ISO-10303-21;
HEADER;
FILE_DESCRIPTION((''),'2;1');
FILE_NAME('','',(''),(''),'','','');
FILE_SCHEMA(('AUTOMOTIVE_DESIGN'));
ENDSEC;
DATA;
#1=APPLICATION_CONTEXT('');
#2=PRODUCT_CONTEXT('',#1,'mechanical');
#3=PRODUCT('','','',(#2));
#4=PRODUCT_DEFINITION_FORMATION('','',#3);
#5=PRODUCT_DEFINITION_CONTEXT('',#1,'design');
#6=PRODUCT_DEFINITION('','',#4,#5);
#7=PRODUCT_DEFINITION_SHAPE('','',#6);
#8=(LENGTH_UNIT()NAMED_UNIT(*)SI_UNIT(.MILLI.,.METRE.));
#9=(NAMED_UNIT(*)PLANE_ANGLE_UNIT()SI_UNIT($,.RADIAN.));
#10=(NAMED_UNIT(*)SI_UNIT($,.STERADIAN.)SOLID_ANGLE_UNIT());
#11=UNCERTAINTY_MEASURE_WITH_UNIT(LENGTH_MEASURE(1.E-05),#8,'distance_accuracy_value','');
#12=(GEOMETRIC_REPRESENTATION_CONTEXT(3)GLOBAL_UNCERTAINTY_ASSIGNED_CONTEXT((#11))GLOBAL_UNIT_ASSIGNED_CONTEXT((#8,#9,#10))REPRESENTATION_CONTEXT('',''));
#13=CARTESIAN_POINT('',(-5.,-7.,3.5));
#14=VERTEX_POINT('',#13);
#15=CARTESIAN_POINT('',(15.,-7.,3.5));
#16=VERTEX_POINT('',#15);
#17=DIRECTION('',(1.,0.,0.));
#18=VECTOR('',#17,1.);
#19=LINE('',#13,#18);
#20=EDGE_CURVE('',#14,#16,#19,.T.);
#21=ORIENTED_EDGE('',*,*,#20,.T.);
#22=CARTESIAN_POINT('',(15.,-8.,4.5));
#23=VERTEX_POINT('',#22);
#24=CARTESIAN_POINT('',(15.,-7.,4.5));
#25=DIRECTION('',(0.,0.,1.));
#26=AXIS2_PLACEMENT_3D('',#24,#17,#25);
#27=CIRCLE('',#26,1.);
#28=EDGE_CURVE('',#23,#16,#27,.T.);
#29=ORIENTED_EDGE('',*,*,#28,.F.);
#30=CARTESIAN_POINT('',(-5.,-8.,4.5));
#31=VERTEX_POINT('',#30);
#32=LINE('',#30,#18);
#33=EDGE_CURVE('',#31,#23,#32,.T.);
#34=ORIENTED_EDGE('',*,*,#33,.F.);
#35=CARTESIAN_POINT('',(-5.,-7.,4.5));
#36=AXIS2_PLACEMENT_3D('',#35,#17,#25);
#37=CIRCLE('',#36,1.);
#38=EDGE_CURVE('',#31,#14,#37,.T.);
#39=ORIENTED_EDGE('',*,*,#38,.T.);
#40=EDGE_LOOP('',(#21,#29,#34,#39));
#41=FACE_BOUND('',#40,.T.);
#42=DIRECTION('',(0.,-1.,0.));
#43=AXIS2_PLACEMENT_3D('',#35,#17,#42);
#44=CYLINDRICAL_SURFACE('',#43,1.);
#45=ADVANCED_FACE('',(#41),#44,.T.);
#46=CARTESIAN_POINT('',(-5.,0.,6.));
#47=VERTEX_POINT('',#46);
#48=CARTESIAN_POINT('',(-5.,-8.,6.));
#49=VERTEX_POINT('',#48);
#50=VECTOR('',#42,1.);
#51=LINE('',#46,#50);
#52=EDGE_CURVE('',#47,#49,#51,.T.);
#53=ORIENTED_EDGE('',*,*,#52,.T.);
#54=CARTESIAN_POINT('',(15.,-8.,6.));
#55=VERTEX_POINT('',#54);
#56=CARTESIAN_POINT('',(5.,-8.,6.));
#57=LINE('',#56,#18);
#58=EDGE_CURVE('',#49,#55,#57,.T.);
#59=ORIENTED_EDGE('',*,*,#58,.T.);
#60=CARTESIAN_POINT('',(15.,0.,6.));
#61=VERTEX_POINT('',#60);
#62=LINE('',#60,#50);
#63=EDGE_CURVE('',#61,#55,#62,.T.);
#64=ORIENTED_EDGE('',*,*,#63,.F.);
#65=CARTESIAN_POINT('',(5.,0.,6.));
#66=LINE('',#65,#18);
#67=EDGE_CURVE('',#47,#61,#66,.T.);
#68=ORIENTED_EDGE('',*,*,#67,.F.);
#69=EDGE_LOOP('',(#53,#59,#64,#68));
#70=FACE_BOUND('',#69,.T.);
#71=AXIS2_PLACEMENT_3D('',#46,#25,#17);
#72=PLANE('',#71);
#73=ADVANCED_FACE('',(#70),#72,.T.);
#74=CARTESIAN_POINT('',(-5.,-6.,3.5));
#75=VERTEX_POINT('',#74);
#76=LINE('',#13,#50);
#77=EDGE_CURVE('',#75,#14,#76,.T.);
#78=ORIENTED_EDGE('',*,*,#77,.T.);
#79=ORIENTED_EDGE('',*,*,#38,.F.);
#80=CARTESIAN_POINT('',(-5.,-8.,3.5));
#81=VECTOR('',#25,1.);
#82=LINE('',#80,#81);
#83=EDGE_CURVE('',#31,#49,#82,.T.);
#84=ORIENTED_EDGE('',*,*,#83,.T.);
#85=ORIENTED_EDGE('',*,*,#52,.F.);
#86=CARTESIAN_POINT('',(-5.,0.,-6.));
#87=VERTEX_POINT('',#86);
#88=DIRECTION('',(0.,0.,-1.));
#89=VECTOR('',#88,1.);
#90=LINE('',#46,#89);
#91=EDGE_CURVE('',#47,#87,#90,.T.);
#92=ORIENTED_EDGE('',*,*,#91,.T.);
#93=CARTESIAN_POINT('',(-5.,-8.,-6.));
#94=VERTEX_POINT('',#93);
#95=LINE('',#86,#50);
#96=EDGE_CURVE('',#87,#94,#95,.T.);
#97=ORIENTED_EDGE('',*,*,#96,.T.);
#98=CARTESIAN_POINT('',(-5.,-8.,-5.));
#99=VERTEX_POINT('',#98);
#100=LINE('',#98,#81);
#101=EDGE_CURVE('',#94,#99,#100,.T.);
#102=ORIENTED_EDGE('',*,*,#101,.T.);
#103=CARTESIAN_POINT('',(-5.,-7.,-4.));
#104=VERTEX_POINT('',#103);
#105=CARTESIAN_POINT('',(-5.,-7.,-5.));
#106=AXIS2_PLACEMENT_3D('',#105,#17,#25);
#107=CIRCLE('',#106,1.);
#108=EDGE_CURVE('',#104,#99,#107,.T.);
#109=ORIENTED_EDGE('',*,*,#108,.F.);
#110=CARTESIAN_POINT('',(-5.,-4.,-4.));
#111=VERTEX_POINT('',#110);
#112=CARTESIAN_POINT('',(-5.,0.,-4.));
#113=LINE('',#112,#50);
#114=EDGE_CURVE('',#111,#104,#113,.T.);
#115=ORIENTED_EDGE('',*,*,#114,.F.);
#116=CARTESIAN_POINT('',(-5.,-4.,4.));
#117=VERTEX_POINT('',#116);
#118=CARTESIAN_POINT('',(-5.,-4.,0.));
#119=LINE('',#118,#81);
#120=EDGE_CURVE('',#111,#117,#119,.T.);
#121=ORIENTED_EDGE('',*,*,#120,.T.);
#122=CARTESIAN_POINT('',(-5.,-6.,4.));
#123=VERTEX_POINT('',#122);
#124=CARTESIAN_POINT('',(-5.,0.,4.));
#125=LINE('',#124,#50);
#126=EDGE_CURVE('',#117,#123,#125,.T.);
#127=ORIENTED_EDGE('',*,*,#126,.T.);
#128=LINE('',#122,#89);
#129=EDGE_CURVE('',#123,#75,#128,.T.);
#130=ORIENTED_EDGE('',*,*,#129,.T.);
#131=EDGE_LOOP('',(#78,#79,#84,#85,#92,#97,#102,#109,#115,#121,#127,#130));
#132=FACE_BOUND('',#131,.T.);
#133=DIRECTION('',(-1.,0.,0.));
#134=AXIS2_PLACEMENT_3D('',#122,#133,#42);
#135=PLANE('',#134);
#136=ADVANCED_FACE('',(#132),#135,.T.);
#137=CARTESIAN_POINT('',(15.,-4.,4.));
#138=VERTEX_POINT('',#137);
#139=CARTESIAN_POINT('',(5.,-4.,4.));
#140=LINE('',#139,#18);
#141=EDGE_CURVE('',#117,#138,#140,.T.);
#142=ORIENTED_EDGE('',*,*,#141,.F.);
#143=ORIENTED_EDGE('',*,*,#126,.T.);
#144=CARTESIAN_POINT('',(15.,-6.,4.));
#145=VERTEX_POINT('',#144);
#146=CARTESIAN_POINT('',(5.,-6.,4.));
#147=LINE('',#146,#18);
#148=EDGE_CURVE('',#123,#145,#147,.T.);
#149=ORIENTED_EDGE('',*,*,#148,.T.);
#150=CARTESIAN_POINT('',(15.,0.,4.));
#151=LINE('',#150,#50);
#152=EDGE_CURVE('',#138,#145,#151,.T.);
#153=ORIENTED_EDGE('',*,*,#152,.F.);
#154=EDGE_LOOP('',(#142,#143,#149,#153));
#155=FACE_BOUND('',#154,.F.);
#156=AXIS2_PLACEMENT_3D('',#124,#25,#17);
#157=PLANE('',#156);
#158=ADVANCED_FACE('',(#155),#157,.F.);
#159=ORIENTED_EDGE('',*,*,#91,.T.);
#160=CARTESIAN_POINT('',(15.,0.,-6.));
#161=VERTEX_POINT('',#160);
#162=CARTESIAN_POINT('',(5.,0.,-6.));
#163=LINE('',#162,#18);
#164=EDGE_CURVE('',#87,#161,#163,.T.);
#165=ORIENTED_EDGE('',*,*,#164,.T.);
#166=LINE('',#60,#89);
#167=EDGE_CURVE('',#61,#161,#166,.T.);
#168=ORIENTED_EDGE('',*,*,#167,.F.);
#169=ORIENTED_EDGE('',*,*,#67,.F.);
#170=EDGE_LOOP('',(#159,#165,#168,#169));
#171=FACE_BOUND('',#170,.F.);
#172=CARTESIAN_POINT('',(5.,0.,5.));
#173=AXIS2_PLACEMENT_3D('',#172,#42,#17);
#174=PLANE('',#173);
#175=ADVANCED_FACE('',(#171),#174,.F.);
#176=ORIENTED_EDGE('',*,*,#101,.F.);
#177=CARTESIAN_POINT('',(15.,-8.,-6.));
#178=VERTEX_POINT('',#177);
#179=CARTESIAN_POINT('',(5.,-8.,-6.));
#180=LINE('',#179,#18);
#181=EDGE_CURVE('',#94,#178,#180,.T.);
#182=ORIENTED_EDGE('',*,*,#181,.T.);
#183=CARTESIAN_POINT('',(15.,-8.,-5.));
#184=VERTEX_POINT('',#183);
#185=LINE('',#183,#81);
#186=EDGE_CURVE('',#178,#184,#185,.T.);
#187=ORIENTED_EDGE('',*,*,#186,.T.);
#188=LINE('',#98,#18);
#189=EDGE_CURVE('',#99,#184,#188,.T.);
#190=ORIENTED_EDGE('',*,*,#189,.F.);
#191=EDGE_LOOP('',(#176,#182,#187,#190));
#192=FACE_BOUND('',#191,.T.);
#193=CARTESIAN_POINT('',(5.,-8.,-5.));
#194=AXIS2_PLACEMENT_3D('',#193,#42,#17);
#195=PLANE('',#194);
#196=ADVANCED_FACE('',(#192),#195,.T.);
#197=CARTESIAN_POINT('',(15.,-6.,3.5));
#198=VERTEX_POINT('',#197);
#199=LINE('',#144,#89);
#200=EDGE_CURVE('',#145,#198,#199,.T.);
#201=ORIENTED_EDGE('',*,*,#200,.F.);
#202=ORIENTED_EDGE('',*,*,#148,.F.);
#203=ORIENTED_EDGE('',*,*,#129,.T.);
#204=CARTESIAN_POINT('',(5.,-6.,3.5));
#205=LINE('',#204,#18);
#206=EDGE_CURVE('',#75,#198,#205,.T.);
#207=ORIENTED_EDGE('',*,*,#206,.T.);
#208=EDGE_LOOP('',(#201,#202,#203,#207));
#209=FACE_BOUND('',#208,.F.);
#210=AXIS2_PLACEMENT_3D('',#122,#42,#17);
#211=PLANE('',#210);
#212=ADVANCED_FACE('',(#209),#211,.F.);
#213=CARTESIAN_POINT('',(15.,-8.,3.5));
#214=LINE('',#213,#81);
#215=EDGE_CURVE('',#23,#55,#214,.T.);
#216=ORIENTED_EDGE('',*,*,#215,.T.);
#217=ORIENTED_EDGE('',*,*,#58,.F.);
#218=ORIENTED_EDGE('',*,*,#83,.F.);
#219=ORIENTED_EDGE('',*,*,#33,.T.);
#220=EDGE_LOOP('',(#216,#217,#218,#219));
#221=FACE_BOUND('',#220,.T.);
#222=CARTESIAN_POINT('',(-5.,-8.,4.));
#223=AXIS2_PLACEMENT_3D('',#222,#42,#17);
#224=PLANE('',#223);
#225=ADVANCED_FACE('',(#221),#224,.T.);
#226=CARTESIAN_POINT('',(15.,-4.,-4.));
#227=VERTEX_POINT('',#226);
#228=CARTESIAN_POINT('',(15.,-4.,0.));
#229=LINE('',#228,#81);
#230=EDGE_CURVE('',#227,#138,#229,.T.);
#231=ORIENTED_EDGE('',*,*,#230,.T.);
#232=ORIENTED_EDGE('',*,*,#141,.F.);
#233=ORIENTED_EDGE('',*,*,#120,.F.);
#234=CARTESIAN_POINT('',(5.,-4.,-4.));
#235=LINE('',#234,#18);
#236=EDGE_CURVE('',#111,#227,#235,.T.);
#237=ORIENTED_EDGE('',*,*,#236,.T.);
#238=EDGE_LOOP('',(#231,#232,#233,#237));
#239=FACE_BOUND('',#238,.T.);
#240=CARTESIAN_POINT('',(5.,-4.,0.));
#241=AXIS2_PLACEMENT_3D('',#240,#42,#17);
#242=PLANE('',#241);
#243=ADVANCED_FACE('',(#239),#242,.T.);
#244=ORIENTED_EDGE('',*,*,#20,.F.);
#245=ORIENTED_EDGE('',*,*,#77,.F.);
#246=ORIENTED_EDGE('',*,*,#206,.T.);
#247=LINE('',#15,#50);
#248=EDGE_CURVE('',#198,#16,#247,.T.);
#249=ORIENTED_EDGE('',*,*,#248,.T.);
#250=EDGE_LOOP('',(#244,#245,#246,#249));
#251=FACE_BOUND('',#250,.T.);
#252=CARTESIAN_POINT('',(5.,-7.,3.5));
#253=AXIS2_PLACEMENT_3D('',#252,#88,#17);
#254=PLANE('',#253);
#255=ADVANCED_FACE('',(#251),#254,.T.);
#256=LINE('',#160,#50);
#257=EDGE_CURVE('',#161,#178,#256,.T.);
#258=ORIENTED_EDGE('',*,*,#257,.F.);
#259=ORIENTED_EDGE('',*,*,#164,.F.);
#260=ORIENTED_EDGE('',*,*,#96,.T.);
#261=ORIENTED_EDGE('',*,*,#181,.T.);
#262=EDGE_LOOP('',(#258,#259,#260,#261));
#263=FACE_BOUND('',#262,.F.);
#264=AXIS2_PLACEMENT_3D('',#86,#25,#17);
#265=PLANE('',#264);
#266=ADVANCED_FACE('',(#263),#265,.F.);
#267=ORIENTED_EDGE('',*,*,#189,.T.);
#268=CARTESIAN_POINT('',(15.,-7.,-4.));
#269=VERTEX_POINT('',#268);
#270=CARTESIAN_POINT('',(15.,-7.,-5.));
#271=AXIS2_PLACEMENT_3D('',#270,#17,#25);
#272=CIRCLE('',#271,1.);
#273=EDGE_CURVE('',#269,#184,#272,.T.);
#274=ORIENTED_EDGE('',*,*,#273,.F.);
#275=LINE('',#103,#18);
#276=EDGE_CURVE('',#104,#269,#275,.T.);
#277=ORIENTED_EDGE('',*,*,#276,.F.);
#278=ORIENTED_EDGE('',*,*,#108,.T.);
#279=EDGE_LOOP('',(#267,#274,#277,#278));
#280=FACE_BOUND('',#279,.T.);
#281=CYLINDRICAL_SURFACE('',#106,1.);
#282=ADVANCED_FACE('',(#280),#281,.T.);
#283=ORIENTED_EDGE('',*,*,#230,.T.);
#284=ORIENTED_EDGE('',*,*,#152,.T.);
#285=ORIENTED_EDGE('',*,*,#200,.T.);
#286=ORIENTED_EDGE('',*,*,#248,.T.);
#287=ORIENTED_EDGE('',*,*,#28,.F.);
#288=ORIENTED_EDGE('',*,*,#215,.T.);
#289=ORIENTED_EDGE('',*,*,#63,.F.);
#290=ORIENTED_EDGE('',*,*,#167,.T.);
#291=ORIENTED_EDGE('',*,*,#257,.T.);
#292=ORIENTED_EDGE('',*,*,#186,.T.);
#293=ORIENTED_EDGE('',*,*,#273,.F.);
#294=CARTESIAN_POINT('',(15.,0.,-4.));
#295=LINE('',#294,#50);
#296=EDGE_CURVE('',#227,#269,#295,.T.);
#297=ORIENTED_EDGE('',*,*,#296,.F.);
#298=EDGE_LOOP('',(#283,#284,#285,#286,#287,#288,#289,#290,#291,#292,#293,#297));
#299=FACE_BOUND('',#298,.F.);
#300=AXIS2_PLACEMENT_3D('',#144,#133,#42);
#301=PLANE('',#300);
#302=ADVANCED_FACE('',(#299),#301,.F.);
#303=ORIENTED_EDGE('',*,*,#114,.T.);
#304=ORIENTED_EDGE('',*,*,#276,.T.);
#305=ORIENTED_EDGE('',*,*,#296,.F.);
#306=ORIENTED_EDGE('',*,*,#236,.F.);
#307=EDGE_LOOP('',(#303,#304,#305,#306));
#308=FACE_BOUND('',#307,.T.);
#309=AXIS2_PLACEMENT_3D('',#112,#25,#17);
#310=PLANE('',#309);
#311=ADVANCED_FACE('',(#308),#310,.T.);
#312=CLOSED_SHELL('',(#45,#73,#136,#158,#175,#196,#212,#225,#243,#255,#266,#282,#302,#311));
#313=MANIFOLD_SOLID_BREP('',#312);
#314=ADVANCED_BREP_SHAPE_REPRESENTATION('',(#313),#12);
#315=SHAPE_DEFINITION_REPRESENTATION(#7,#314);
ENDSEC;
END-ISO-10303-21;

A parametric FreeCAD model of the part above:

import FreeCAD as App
import Part
import Sketcher
from FreeCAD import Vector
Q = App.Units.Quantity


def edges_at(feature, points):
    """Names of the edges that pass closest to the given points."""
    edges = feature.Shape.Edges
    near = lambda p: min(range(len(edges)), key=lambda i: edges[i].distToShape(Part.Vertex(*p))[0])
    return sorted({f"Edge{near(p) + 1}" for p in points})


def add_polygon(sketch, points):
    """Adds a closed chain of lines whose ends are joined by coincident constraints."""
    first, n = sketch.GeometryCount, len(points)
    for a, b in zip(points, points[1:] + points[:1]):
        sketch.addGeometry(Part.LineSegment(App.Vector(*a, 0), App.Vector(*b, 0)), False)
    for i in range(n):
        sketch.addConstraint(Sketcher.Constraint("Coincident", first + i, 2, first + (i + 1) % n, 1))

doc = App.newDocument("Part")
body = doc.addObject("PartDesign::Body", "Body")

# Sketch on XZ plane
sketch1 = doc.addObject("Sketcher::SketchObject", "Sketch")
body.addObject(sketch1)
sketch1.AttachmentSupport = (doc.XZ_Plane, [""])
sketch1.MapMode = "FlatFace"
add_polygon(sketch1, [(-5, 4), (-5, -4), (15, -4), (15, 4)])  # lines 0-3
sketch1.addConstraint(Sketcher.Constraint("Vertical", 0))
sketch1.addConstraint(Sketcher.Constraint("Horizontal", 1))
sketch1.addConstraint(Sketcher.Constraint("Vertical", 2))
sketch1.addConstraint(Sketcher.Constraint("Horizontal", 3))
sketch1.addConstraint(Sketcher.Constraint("DistanceX", 1, 1, 1, 2, Q("20 mm")))
sketch1.addConstraint(Sketcher.Constraint("DistanceY", 0, 2, 0, 1, Q("8 mm")))
sketch1.addConstraint(Sketcher.Constraint("DistanceX", 0, 2, -1, 1, Q("5 mm")))
sketch1.addConstraint(Sketcher.Constraint("DistanceY", 0, 2, -1, 1, Q("4 mm")))
pad1 = doc.addObject("PartDesign::Pad", "Pad")
body.addObject(pad1)
pad1.Profile = sketch1
pad1.Length = 4

# Sketch on XZ plane
sketch2 = doc.addObject("Sketcher::SketchObject", "Sketch001")
body.addObject(sketch2)
sketch2.AttachmentSupport = (doc.XZ_Plane, [""])
sketch2.MapMode = "FlatFace"
add_polygon(sketch2, [(-5, 6), (-5, 4), (15, 4), (15, 6)])  # lines 0-3
add_polygon(sketch2, [(-5, -4), (-5, -6), (15, -6), (15, -4)])  # lines 4-7
sketch2.addConstraint(Sketcher.Constraint("Vertical", 0))
sketch2.addConstraint(Sketcher.Constraint("Horizontal", 1))
sketch2.addConstraint(Sketcher.Constraint("Vertical", 2))
sketch2.addConstraint(Sketcher.Constraint("Horizontal", 3))
sketch2.addConstraint(Sketcher.Constraint("Vertical", 4))
sketch2.addConstraint(Sketcher.Constraint("Horizontal", 5))
sketch2.addConstraint(Sketcher.Constraint("Vertical", 6))
sketch2.addConstraint(Sketcher.Constraint("Horizontal", 7))
sketch2.addConstraint(Sketcher.Constraint("Symmetric", 3, 2, 4, 2, -1))
sketch2.addConstraint(Sketcher.Constraint("Symmetric", 1, 2, 6, 2, -1))
sketch2.addConstraint(Sketcher.Constraint("DistanceX", 1, 1, 1, 2, Q("20 mm")))
sketch2.addConstraint(Sketcher.Constraint("DistanceY", 0, 2, 0, 1, Q("2 mm")))
sketch2.addConstraint(Sketcher.Constraint("DistanceX", 0, 2, -1, 1, Q("5 mm")))
sketch2.addConstraint(Sketcher.Constraint("DistanceY", -1, 1, 0, 2, Q("4 mm")))
pad2 = doc.addObject("PartDesign::Pad", "Pad001")
body.addObject(pad2)
pad2.Profile = sketch2
pad2.Length = 8

# Sketch on XY plane
sketch3 = doc.addObject("Sketcher::SketchObject", "Sketch002")
body.addObject(sketch3)
sketch3.AttachmentSupport = (doc.XY_Plane, [""])
sketch3.MapMode = "FlatFace"
sketch3.AttachmentOffset = App.Placement(Vector(0, 0, 4), App.Rotation())
add_polygon(sketch3, [(-5, -8), (-5, -6), (15, -6), (15, -8)])  # lines 0-3
sketch3.addConstraint(Sketcher.Constraint("Vertical", 0))
sketch3.addConstraint(Sketcher.Constraint("Horizontal", 1))
sketch3.addConstraint(Sketcher.Constraint("Vertical", 2))
sketch3.addConstraint(Sketcher.Constraint("Horizontal", 3))
sketch3.addConstraint(Sketcher.Constraint("DistanceX", 1, 1, 1, 2, Q("20 mm")))
sketch3.addConstraint(Sketcher.Constraint("DistanceY", 0, 1, 0, 2, Q("2 mm")))
sketch3.addConstraint(Sketcher.Constraint("DistanceX", 0, 2, -1, 1, Q("5 mm")))
sketch3.addConstraint(Sketcher.Constraint("DistanceY", 0, 2, -1, 1, Q("6 mm")))
pad3 = doc.addObject("PartDesign::Pad", "Pad002")
body.addObject(pad3)
pad3.Profile = sketch3
pad3.Length = 0.5
pad3.Reversed = True
doc.recompute()

fillet = doc.addObject("PartDesign::Fillet", "Fillet")
body.addObject(fillet)
fillet.Base = (pad3, edges_at(pad3, [(5, -8, 3.5), (5, -8, -4)]))
fillet.Radius = 1

doc.recompute()
